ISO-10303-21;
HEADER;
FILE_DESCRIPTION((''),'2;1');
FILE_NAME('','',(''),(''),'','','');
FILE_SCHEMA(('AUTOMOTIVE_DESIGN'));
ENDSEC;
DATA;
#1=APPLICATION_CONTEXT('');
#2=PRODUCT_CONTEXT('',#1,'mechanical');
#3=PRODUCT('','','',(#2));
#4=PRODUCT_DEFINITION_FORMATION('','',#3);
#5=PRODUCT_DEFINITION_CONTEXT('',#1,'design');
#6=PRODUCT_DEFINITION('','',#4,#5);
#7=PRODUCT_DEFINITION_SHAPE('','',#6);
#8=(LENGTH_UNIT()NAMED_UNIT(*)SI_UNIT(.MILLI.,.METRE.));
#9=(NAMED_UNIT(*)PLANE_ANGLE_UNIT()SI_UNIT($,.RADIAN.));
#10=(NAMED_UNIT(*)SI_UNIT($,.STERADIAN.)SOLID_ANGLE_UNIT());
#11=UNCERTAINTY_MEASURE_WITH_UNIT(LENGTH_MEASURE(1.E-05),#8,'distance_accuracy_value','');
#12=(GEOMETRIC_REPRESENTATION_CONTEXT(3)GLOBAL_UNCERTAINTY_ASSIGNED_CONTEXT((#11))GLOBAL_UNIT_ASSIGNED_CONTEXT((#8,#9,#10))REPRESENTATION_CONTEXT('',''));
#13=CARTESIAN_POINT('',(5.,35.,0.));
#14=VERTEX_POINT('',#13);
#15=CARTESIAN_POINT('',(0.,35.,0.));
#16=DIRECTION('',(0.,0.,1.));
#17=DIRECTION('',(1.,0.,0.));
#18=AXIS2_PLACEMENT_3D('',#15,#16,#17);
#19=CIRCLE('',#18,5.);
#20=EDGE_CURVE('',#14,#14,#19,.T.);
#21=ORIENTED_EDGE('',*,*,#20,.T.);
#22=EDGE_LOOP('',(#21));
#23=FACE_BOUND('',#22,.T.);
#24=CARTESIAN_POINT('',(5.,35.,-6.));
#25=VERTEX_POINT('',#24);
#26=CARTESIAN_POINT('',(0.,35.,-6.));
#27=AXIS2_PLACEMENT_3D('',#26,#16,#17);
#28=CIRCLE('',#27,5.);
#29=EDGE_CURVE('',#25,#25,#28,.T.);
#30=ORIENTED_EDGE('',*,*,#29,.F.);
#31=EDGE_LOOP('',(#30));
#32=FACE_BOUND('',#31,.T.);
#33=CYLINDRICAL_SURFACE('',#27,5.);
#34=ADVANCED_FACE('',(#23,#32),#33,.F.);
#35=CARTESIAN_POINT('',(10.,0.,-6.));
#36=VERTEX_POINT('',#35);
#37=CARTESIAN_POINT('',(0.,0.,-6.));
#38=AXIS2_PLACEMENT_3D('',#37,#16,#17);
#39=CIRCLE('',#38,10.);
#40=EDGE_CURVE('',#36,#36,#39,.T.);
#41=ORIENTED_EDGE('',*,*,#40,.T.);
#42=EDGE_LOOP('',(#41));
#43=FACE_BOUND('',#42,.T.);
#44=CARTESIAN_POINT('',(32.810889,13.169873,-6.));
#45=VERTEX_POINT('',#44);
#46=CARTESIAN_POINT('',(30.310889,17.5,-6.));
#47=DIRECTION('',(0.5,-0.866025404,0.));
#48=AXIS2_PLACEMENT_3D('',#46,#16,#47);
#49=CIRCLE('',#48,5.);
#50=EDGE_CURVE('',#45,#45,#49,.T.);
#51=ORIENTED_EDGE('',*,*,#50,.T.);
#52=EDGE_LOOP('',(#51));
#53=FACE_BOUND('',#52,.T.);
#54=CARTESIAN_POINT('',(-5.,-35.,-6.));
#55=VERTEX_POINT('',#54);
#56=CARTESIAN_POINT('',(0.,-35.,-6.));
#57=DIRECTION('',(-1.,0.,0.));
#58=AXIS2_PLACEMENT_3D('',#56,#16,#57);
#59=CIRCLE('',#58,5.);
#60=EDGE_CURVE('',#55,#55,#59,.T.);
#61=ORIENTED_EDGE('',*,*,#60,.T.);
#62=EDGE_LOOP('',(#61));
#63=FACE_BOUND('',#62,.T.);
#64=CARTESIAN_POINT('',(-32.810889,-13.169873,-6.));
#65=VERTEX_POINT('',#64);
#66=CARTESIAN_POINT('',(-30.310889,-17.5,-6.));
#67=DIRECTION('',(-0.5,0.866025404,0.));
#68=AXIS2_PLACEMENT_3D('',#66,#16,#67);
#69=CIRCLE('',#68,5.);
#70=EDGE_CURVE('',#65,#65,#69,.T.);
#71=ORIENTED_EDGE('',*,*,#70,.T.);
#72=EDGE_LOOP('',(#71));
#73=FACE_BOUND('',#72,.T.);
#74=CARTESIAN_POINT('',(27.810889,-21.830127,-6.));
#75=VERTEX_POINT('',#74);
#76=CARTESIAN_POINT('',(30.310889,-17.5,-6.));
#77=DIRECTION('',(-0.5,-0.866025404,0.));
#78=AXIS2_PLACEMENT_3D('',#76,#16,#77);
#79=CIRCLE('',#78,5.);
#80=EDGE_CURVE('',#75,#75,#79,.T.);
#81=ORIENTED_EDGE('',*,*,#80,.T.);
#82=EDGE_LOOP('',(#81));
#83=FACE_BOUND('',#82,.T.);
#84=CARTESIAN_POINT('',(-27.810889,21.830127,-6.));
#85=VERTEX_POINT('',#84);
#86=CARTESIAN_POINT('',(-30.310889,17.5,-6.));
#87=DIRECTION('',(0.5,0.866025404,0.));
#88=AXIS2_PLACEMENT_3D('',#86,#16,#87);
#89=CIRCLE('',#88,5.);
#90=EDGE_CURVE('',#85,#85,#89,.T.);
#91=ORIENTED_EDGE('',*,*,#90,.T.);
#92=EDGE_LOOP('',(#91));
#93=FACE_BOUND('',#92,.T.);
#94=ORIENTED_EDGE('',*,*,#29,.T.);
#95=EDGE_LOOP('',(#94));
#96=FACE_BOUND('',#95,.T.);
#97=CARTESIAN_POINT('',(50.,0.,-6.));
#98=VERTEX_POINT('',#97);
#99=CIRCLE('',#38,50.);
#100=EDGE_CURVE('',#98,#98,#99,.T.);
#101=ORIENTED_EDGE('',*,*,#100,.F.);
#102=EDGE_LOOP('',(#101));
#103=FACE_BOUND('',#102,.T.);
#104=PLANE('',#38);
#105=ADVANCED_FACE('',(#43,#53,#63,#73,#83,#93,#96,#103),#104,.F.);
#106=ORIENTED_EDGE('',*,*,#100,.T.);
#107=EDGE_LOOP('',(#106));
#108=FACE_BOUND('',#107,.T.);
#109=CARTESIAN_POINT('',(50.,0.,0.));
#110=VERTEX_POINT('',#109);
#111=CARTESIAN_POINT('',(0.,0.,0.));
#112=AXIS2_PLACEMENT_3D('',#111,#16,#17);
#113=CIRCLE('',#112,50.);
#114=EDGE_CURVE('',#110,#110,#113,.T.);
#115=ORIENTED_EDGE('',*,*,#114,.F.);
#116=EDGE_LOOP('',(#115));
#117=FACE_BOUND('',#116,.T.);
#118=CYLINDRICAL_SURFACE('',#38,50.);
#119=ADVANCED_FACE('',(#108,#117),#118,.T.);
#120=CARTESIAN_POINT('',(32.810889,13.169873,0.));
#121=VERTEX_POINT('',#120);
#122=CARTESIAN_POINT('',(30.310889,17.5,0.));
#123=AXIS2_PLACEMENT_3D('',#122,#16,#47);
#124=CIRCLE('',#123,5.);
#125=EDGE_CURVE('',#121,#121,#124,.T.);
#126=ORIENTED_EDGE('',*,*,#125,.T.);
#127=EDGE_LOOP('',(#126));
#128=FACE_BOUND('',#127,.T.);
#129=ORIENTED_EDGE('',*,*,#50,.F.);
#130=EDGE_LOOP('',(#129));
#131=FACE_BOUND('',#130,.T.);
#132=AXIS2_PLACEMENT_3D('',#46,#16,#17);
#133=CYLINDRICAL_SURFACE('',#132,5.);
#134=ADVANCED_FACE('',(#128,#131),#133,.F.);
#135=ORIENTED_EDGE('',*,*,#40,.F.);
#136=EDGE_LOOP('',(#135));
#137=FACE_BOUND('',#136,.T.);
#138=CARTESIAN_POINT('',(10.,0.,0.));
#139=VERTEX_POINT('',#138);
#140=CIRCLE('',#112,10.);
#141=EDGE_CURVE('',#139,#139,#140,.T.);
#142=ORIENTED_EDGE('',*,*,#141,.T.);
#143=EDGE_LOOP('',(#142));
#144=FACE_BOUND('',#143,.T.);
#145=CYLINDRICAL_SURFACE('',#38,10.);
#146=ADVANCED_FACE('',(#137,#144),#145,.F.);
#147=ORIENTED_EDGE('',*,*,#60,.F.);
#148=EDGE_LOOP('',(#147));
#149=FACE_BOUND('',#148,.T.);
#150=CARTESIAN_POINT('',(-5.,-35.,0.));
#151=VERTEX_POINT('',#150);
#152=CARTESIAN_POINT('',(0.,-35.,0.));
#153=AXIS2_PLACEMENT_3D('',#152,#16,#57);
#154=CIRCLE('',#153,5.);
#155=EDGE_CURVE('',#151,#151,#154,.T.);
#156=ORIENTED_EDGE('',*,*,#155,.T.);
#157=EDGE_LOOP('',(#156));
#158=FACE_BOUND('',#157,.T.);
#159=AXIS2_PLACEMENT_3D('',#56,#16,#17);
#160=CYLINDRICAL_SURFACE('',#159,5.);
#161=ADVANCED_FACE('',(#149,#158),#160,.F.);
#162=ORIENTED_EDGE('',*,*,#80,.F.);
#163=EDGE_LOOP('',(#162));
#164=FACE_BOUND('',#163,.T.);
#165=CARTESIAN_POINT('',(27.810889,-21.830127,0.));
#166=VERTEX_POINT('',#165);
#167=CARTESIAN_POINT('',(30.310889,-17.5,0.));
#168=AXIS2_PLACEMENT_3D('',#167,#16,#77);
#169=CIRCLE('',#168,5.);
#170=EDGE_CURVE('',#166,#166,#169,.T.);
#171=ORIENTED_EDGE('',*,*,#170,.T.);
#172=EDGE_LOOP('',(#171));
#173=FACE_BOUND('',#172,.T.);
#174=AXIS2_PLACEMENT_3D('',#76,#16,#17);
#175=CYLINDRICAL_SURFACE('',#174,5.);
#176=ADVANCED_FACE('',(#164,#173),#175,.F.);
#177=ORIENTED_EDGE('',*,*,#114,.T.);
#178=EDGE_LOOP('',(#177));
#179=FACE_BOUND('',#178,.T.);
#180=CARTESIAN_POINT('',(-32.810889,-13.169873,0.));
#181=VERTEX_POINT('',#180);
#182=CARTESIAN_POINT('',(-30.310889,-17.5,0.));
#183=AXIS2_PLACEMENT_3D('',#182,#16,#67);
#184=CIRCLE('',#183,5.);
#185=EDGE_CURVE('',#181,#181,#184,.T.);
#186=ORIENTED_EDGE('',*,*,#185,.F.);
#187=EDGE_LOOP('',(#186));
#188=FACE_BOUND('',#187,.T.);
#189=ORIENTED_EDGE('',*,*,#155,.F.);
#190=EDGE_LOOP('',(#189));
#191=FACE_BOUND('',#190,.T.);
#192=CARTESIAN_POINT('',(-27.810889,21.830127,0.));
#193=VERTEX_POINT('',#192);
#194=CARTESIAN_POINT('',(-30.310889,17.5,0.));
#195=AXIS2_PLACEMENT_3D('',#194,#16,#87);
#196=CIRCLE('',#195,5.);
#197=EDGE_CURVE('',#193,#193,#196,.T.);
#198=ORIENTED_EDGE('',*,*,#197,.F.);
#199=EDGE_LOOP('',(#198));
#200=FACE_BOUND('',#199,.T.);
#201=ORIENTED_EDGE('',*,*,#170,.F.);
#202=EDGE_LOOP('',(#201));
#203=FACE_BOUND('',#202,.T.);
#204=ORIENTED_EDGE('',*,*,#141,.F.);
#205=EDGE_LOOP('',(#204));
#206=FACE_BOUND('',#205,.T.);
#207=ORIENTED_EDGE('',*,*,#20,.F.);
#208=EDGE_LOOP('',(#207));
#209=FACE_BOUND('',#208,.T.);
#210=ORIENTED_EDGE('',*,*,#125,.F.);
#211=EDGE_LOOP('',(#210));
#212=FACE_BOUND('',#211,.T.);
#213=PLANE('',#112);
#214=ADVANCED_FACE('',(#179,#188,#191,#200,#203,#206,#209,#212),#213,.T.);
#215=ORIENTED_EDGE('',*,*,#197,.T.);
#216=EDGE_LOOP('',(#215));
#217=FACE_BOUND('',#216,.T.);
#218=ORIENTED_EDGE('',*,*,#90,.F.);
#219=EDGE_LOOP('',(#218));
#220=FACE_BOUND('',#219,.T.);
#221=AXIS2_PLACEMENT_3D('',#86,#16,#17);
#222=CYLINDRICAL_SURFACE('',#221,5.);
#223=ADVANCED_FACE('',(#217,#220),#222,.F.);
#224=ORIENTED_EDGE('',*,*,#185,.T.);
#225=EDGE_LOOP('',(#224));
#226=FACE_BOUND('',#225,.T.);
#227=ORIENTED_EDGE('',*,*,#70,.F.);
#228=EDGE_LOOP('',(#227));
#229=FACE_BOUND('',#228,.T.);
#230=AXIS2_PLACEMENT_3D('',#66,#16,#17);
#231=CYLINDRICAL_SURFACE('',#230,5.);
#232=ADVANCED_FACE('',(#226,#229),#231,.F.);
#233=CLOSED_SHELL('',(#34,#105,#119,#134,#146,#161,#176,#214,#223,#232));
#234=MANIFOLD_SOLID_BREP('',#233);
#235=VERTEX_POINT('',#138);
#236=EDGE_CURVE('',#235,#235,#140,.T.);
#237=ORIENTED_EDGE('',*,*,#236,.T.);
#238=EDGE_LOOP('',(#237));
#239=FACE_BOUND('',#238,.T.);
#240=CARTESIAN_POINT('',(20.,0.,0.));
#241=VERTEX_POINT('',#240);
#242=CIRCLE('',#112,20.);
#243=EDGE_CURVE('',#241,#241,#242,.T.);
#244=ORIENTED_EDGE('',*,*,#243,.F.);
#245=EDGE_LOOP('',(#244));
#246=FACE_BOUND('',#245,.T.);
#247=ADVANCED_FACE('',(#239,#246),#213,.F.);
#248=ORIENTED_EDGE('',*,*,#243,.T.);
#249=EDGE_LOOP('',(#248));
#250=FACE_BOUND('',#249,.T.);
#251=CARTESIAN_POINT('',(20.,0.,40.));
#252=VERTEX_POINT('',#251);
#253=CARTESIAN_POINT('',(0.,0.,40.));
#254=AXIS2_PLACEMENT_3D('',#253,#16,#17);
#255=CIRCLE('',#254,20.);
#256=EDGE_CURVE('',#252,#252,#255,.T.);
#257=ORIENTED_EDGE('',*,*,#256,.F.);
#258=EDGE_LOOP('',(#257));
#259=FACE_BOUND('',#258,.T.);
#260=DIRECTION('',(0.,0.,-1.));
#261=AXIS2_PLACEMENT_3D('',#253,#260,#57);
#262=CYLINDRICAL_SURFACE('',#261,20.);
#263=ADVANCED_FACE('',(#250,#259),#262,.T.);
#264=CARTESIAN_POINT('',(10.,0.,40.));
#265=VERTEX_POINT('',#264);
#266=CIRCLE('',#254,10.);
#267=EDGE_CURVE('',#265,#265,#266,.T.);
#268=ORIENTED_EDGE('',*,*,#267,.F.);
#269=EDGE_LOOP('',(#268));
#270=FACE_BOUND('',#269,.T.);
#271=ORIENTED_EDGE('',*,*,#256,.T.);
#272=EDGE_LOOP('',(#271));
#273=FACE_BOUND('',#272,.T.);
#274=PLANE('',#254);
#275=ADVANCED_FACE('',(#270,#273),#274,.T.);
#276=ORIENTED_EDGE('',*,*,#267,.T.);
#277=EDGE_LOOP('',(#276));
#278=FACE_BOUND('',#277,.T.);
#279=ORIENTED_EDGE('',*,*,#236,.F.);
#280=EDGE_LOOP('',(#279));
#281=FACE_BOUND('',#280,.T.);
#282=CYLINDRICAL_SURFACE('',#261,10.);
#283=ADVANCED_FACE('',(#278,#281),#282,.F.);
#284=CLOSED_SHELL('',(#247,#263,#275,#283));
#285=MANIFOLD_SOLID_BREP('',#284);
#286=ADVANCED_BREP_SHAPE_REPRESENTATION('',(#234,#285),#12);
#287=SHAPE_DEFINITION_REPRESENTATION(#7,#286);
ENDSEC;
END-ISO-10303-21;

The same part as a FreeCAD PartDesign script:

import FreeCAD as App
import Part
import Sketcher

V = App.Vector

doc = App.newDocument("Part")
body = doc.addObject("PartDesign::Body", "Body")

# Sketch on XY plane
sketch1 = body.newObject("Sketcher::SketchObject", "Sketch")
sketch1.AttachmentSupport = (doc.getObject("XY_Plane"), [""])
sketch1.MapMode = "FlatFace"
sketch1.addGeometry(Part.Circle(V(0, 0, 0), V(0, 0, 1), 50), False)
sketch1.addGeometry(Part.Circle(V(0, 0, 0), V(0, 0, 1), 10), False)
sketch1.addConstraint(Sketcher.Constraint("Coincident", 0, 3, -1, 1))
sketch1.addConstraint(Sketcher.Constraint("Coincident", 1, 3, -1, 1))
sketch1.addConstraint(Sketcher.Constraint("Diameter", 0, 100.0))
sketch1.addConstraint(Sketcher.Constraint("Diameter", 1, 20.0))
pad1 = body.newObject("PartDesign::Pad", "Pad")
pad1.Profile = sketch1
pad1.Length = 6
pad1.Reversed = True

# Sketch on XY plane
sketch2 = body.newObject("Sketcher::SketchObject", "Sketch001")
sketch2.AttachmentSupport = (doc.getObject("XY_Plane"), [""])
sketch2.MapMode = "FlatFace"
sketch2.addGeometry(Part.Circle(V(0, 35, 0), V(0, 0, 1), 5), False)
sketch2.addConstraint(Sketcher.Constraint("PointOnObject", 0, 3, -2))
sketch2.addConstraint(Sketcher.Constraint("Diameter", 0, 10.0))
sketch2.addConstraint(Sketcher.Constraint("DistanceY", -1, 1, 0, 3, 35.0))
pocket1 = body.newObject("PartDesign::Pocket", "Pocket")
pocket1.Profile = sketch2
pocket1.Type = "ThroughAll"
doc.recompute()

polarpattern = body.newObject("PartDesign::PolarPattern", "PolarPattern")
polarpattern.Originals = [pocket1]
polarpattern.Axis = (doc.getObject("Z_Axis"), [""])
polarpattern.Angle = 360
polarpattern.Occurrences = 6
body.Tip = polarpattern
body2 = doc.addObject("PartDesign::Body", "Body001")

# Sketch on XY plane
sketch3 = body2.newObject("Sketcher::SketchObject", "Sketch002")
sketch3.AttachmentSupport = (doc.getObject("XY_Plane001"), [""])
sketch3.MapMode = "FlatFace"
sketch3.addGeometry(Part.Circle(V(0, 0, 0), V(0, 0, 1), 20), False)
sketch3.addGeometry(Part.Circle(V(0, 0, 0), V(0, 0, 1), 10), False)
sketch3.addConstraint(Sketcher.Constraint("Coincident", 0, 3, -1, 1))
sketch3.addConstraint(Sketcher.Constraint("Coincident", 1, 3, -1, 1))
sketch3.addConstraint(Sketcher.Constraint("Diameter", 0, 40.0))
sketch3.addConstraint(Sketcher.Constraint("Diameter", 1, 20.0))
pad2 = body2.newObject("PartDesign::Pad", "Pad001")
pad2.Profile = sketch3
pad2.Length = 40

doc.recompute()
